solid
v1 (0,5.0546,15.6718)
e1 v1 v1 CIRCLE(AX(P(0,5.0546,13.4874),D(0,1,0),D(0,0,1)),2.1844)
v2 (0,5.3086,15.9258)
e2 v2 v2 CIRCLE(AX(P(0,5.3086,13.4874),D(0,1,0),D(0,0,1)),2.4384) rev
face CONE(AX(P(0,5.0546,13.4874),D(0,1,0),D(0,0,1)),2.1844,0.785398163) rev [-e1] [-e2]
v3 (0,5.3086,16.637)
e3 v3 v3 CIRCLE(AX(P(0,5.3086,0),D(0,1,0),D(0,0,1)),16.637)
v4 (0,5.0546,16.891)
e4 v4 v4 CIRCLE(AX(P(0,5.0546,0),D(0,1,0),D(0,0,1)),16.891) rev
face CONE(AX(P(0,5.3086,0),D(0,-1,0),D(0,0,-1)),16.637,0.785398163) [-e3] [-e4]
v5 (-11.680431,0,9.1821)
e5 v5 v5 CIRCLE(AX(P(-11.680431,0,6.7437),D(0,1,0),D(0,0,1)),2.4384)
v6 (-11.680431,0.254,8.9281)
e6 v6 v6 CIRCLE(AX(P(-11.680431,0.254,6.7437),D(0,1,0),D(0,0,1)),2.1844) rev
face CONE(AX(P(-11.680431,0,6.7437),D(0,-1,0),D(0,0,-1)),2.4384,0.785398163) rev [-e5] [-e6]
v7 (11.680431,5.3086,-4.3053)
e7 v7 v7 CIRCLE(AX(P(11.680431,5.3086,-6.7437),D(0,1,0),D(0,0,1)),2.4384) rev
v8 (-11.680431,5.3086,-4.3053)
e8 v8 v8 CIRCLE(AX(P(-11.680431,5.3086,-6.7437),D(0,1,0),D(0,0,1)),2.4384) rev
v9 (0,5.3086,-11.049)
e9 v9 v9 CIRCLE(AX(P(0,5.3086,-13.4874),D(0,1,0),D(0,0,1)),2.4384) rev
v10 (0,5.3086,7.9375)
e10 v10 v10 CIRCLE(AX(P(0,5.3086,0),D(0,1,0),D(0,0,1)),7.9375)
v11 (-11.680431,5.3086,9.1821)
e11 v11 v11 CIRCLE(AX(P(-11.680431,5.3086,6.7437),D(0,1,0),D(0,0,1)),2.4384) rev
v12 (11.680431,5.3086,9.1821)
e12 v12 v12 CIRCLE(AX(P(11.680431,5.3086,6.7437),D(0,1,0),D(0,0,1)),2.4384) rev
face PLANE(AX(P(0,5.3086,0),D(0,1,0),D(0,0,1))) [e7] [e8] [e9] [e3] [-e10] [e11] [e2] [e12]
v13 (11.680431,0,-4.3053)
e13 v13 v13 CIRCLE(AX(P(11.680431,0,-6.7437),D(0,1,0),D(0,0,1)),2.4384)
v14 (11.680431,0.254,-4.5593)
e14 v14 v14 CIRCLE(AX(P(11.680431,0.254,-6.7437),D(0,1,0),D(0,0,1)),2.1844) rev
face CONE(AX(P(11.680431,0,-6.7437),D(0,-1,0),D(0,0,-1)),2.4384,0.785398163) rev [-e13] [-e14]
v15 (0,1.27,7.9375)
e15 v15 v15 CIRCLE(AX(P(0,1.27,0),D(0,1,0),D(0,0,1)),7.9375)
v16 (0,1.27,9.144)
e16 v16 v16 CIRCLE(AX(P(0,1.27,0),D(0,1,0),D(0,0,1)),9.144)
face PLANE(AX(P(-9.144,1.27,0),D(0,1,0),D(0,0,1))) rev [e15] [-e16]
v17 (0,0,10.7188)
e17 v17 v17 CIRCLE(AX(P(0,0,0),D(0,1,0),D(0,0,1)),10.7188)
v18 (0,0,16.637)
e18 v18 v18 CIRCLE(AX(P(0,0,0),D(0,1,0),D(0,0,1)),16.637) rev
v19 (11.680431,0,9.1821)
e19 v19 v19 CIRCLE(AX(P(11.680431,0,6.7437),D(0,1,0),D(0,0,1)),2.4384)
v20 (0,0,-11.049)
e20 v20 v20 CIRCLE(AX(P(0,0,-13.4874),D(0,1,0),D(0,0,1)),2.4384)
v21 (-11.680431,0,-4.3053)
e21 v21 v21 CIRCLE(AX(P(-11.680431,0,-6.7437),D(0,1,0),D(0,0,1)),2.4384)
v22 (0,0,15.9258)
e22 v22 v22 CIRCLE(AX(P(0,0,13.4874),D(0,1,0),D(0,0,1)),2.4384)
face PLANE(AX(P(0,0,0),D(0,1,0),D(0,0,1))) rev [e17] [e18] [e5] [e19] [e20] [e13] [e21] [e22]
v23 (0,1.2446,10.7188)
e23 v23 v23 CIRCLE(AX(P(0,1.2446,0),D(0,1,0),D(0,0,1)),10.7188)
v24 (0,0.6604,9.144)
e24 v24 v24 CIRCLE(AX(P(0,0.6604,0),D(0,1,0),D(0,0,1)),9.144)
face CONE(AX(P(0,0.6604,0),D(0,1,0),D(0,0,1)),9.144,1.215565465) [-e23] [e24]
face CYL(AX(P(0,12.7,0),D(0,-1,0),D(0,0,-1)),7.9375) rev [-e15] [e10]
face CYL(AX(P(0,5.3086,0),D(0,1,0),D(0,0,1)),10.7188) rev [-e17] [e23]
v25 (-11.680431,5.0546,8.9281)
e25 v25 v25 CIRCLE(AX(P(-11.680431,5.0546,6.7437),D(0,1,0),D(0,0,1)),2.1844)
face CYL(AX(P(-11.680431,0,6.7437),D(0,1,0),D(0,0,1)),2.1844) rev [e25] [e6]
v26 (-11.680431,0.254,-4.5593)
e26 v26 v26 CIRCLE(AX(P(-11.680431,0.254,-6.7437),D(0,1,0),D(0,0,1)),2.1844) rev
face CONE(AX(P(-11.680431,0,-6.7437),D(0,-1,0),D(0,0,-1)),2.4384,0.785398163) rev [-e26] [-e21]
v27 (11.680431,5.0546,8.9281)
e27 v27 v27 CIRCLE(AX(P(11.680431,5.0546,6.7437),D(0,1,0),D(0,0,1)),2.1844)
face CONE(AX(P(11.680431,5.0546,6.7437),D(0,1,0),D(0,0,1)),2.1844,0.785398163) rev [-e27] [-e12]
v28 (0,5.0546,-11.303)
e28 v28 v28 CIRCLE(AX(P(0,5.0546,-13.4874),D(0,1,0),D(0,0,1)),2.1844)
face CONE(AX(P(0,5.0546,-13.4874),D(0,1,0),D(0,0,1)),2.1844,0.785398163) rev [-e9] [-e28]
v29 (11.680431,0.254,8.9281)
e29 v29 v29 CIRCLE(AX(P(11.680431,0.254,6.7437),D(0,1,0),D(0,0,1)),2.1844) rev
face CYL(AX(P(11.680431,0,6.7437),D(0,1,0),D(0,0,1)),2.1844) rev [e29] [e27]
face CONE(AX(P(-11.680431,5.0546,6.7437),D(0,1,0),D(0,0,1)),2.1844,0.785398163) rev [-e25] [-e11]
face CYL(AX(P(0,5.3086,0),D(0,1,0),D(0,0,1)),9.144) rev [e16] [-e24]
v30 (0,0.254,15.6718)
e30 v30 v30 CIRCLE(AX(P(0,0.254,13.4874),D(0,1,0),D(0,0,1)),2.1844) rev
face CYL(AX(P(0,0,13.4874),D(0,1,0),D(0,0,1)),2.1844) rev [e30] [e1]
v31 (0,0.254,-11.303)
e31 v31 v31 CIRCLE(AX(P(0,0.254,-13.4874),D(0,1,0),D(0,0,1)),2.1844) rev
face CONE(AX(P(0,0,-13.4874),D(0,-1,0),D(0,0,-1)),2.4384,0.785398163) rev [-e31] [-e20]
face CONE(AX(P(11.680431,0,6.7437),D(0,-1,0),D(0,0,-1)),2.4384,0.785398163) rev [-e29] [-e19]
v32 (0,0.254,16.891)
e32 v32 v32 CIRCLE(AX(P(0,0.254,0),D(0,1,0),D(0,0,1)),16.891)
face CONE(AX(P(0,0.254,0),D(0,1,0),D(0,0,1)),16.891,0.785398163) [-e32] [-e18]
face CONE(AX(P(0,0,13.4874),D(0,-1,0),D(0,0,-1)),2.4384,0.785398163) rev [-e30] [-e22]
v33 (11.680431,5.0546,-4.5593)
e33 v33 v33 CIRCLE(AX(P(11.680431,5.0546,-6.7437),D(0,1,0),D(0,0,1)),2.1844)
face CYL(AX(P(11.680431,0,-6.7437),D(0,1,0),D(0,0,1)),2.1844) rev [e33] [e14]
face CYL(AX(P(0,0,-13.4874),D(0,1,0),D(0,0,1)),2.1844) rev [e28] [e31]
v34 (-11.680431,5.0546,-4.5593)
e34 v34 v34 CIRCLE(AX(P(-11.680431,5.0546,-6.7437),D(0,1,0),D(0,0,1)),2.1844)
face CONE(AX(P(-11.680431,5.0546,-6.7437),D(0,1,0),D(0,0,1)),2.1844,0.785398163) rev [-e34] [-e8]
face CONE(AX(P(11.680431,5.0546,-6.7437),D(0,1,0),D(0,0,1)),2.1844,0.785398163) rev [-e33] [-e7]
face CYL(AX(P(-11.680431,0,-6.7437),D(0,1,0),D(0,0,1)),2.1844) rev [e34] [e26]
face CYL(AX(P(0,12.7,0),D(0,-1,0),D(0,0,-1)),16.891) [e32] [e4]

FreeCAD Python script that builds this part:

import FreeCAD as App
import Part
import Sketcher
Q = App.Units.Quantity


def edges_at(feature, points):
    """Names of the edges that pass closest to the given points."""
    edges = feature.Shape.Edges
    near = lambda p: min(range(len(edges)), key=lambda i: edges[i].distToShape(Part.Vertex(*p))[0])
    return sorted({f"Edge{near(p) + 1}" for p in points})


def add_polygon(sketch, points):
    """Adds a closed chain of lines whose ends are joined by coincident constraints."""
    first, n = sketch.GeometryCount, len(points)
    for a, b in zip(points, points[1:] + points[:1]):
        sketch.addGeometry(Part.LineSegment(App.Vector(*a, 0), App.Vector(*b, 0)), False)
    for i in range(n):
        sketch.addConstraint(Sketcher.Constraint("Coincident", first + i, 2, first + (i + 1) % n, 1))

doc = App.newDocument("Part")
params = doc.addObject("Spreadsheet::Sheet", "Params")
for row, (alias, value) in enumerate([
    ("sketch1_diameter", "1.33 in"),
    ("sketch1_diameter2", "0.625 in"),
    ("pad1_length", "0.5 in"),
    ("sketch2_diameter", "1.625 in"),
    ("pocket1_length", "0.291 in"),
    ("chamfer_size", "0.01 in"),
    ("sketch3_width", "0.36 in"),
    ("sketch3_height", "0.05 in"),
    ("sketch3_width2", "0.422 in"),
    ("sketch3_height2", "0.049 in"),
    ("sketch3_height3", "0.024 in"),
    ("groove_angle", "360 deg"),
    ("sketch4_diameter", "0.172 in"),
    ("chamfer2_size", "0.01 in"),
    ("chamfer3_size", "0.01 in"),
], start=1):
    params.set(f"A{row}", alias)
    params.set(f"B{row}", "=" + value)
    params.setAlias(f"B{row}", alias)

body = doc.addObject("PartDesign::Body", "Body")

# Sketch on XZ plane
sketch1 = doc.addObject("Sketcher::SketchObject", "Sketch")
body.addObject(sketch1)
sketch1.AttachmentSupport = (doc.XZ_Plane, [""])
sketch1.MapMode = "FlatFace"
sketch1.addGeometry([
    Part.Circle(App.Vector(0, 0, 0), App.Vector(0, 0, 1), 17),
    Part.Circle(App.Vector(0, 0, 0), App.Vector(0, 0, 1), 8),
], False)
sketch1.addConstraint([
    Sketcher.Constraint("Coincident", 0, 3, -1, 1),
    Sketcher.Constraint("Coincident", 1, 3, -1, 1),
    Sketcher.Constraint("Diameter", 0, Q("1.33 in")),
    Sketcher.Constraint("Diameter", 1, Q("0.625 in")),
])
sketch1.setExpression("Constraints[2]", "Params.sketch1_diameter")
sketch1.setExpression("Constraints[3]", "Params.sketch1_diameter2")
pad1 = doc.addObject("PartDesign::Pad", "Pad")
body.addObject(pad1)
pad1.Profile = sketch1
pad1.setExpression("Length", "Params.pad1_length")
pad1.Reversed = True

# Sketch on XZ plane
sketch2 = doc.addObject("Sketcher::SketchObject", "Sketch001")
body.addObject(sketch2)
sketch2.AttachmentSupport = (doc.XZ_Plane, [""])
sketch2.MapMode = "FlatFace"
sketch2.AttachmentOffset = App.Placement(App.Vector(0, 0, -0.5 * 25.4), App.Rotation())
sketch2.addGeometry(Part.Circle(App.Vector(0, 0, 0), App.Vector(0, 0, 1), 21), False)
sketch2.addConstraint([
    Sketcher.Constraint("Coincident", 0, 3, -1, 1),
    Sketcher.Constraint("Diameter", 0, Q("1.625 in")),
])
sketch2.setExpression("Constraints[1]", "Params.sketch2_diameter")
pocket1 = doc.addObject("PartDesign::Pocket", "Pocket")
body.addObject(pocket1)
pocket1.Profile = sketch2
pocket1.setExpression("Length", "Params.pocket1_length")
pocket1.Reversed = True
doc.recompute()

chamfer = doc.addObject("PartDesign::Chamfer", "Chamfer")
body.addObject(chamfer)
chamfer.Base = (pocket1, edges_at(pocket1, [(-16.891, 5.309, 0), (-16.891, 0, 0)]))
chamfer.setExpression("Size", "Params.chamfer_size")

# Sketch on XY plane
sketch3 = doc.addObject("Sketcher::SketchObject", "Sketch002")
body.addObject(sketch3)
sketch3.AttachmentSupport = (doc.XY_Plane, [""])
sketch3.MapMode = "FlatFace"
add_polygon(sketch3, [(-10.7, 1.2), (-10.7, 0), (0, 0), (0, 1.3), (-9.1, 1.3), (-9.1, 0.7)])  # lines 0-5
sketch3.addConstraint([
    Sketcher.Constraint("Vertical", 0),
    Sketcher.Constraint("Horizontal", 1),
    Sketcher.Constraint("Vertical", 2),
    Sketcher.Constraint("Horizontal", 3),
    Sketcher.Constraint("Vertical", 4),
    Sketcher.Constraint("Coincident", 1, 2, -1, 1),
    Sketcher.Constraint("DistanceX", 3, 2, 3, 1, Q("0.36 in")),
    Sketcher.Constraint("DistanceY", 2, 1, 2, 2, Q("0.05 in")),
    Sketcher.Constraint("DistanceX", 1, 1, 1, 2, Q("0.422 in")),
    Sketcher.Constraint("DistanceY", 0, 2, 0, 1, Q("0.049 in")),
    Sketcher.Constraint("DistanceY", 4, 2, 4, 1, Q("0.024 in")),
])
sketch3.setExpression("Constraints[12]", "Params.sketch3_width")
sketch3.setExpression("Constraints[13]", "Params.sketch3_height")
sketch3.setExpression("Constraints[14]", "Params.sketch3_width2")
sketch3.setExpression("Constraints[15]", "Params.sketch3_height2")
sketch3.setExpression("Constraints[16]", "Params.sketch3_height3")
groove = doc.addObject("PartDesign::Groove", "Groove")
body.addObject(groove)
groove.Profile = sketch3
groove.ReferenceAxis = (sketch3, ["V_Axis"])
groove.setExpression("Angle", "Params.groove_angle")

# Sketch on XZ plane
sketch4 = doc.addObject("Sketcher::SketchObject", "Sketch003")
body.addObject(sketch4)
sketch4.AttachmentSupport = (doc.XZ_Plane, [""])
sketch4.MapMode = "FlatFace"
sketch4.AttachmentOffset = App.Placement(App.Vector(0, 0, -0.209 * 25.4), App.Rotation())
sketch4.addGeometry(Part.Circle(App.Vector(0, -13.5, 0), App.Vector(0, 0, 1), 2.2), False)
sketch4.addConstraint([
    Sketcher.Constraint("PointOnObject", 0, 3, -2),
    Sketcher.Constraint("Diameter", 0, Q("0.172 in")),
    Sketcher.Constraint("DistanceY", 0, 3, -1, 1, Q("0.531 in")),
])
sketch4.setExpression("Constraints[1]", "Params.sketch4_diameter")
pocket2 = doc.addObject("PartDesign::Pocket", "Pocket001")
body.addObject(pocket2)
pocket2.Profile = sketch4
pocket2.Type = "ThroughAll"
pocket2.Reversed = True
doc.recompute()

chamfer2 = doc.addObject("PartDesign::Chamfer", "Chamfer001")
body.addObject(chamfer2)
chamfer2.Base = (pocket2, edges_at(pocket2, [(-2.184, 0, -13.487), (-2.184, 5.309, -13.487)]))
chamfer2.setExpression("Size", "Params.chamfer2_size")
doc.recompute()

polarpattern = doc.addObject("PartDesign::PolarPattern", "PolarPattern")
body.addObject(polarpattern)
polarpattern.Originals = [pocket2]
polarpattern.Axis = (doc.Y_Axis, [""])
polarpattern.Angle = 360
polarpattern.Occurrences = 6
body.Tip = polarpattern
doc.recompute()

chamfer3 = doc.addObject("PartDesign::Chamfer", "Chamfer002")
body.addObject(chamfer3)
chamfer3.Base = (polarpattern, edges_at(polarpattern, [
    (-12.773, 0, -4.852),
    (-12.773, 5.309, -4.852),
    (-10.588, 0, 8.635),
    (-10.588, 5.309, 8.635),
    (2.184, 0, 13.487),
    (2.184, 5.309, 13.487),
    (12.773, 0, 4.852),
    (12.773, 5.309, 4.852),
    (10.588, 0, -8.635),
    (10.588, 5.309, -8.635),
]))
chamfer3.setExpression("Size", "Params.chamfer3_size")

doc.recompute()
